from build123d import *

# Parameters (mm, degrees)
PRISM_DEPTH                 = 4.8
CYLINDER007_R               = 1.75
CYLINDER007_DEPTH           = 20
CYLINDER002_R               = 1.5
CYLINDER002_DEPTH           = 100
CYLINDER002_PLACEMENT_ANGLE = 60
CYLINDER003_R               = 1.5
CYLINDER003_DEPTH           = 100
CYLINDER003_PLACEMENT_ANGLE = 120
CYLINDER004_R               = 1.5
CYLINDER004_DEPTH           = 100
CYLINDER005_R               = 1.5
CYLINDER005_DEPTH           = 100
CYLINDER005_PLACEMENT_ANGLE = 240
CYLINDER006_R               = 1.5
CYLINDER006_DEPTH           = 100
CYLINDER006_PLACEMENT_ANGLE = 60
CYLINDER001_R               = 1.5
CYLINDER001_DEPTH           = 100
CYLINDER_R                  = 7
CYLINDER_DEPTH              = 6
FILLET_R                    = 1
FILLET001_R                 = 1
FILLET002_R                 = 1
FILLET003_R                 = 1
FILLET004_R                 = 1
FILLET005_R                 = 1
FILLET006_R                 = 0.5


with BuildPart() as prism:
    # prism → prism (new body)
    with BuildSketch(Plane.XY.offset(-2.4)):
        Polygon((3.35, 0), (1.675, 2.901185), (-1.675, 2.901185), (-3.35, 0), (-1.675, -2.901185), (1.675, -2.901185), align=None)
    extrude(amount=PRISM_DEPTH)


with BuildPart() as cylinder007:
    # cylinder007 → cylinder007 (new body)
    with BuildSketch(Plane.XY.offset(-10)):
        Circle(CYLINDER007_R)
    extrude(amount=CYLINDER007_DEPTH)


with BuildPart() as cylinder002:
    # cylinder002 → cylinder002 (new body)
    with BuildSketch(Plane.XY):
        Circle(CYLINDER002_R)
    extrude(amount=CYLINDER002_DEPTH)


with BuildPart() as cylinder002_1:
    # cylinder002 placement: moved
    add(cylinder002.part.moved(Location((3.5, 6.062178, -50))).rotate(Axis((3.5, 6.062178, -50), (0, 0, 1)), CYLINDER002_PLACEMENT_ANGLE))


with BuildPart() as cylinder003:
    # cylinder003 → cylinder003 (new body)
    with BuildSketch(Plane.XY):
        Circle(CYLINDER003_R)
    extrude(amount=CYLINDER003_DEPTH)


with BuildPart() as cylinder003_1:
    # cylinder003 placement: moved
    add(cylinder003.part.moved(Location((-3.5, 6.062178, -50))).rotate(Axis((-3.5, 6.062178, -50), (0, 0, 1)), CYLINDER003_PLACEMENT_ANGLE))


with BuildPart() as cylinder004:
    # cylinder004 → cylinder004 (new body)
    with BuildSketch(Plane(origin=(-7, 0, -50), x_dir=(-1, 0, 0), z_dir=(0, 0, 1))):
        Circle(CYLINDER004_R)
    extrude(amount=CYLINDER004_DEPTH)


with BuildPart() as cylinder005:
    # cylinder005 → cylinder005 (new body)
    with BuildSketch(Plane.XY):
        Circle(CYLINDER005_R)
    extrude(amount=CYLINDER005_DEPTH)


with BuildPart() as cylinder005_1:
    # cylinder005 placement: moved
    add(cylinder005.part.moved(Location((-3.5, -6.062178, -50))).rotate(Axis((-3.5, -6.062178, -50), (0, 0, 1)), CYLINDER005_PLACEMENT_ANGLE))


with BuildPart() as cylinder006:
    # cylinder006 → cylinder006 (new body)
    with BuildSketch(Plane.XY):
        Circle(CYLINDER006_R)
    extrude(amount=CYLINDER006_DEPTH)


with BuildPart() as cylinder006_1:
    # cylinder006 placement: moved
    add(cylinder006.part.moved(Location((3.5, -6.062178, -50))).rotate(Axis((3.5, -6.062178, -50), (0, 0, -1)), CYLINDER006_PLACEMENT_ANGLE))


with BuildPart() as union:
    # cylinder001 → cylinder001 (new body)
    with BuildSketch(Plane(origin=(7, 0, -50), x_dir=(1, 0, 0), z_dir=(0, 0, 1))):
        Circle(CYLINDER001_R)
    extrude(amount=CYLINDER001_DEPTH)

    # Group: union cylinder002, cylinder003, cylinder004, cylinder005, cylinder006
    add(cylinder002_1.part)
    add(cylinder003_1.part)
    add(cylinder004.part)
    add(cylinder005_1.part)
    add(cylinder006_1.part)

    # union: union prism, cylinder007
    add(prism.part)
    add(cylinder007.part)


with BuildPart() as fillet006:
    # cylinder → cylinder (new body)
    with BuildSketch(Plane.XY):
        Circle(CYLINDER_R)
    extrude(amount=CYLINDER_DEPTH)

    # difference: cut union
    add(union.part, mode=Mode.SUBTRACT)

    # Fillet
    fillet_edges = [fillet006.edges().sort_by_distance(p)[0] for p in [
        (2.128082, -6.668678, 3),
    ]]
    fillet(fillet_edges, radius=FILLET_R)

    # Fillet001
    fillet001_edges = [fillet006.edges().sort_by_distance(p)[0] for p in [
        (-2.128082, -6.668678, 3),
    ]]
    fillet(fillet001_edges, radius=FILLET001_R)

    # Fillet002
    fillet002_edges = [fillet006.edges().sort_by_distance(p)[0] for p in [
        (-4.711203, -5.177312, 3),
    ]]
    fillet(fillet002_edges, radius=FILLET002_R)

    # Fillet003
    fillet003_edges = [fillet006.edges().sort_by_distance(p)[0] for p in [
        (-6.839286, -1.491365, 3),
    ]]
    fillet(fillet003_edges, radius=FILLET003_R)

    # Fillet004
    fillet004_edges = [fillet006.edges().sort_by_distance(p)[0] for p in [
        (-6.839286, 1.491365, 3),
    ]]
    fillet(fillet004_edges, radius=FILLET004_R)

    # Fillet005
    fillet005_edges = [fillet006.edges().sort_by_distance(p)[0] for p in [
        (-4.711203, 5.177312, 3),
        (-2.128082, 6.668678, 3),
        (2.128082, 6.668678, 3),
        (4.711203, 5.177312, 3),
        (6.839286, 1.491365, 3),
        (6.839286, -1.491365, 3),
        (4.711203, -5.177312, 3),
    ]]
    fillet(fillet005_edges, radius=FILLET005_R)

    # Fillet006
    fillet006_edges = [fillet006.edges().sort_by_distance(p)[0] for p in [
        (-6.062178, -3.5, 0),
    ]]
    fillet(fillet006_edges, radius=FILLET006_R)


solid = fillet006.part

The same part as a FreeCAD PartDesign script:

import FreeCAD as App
import Part
import Sketcher
Q = App.Units.Quantity


def edges_at(feature, points):
    """Names of the edges that pass closest to the given points."""
    edges = feature.Shape.Edges
    near = lambda p: min(range(len(edges)), key=lambda i: edges[i].distToShape(Part.Vertex(*p))[0])
    return sorted({f"Edge{near(p) + 1}" for p in points})


def add_polygon(sketch, points):
    """Adds a closed chain of lines whose ends are joined by coincident constraints."""
    first, n = sketch.GeometryCount, len(points)
    for a, b in zip(points, points[1:] + points[:1]):
        sketch.addGeometry(Part.LineSegment(App.Vector(*a, 0), App.Vector(*b, 0)), False)
    for i in range(n):
        sketch.addConstraint(Sketcher.Constraint("Coincident", first + i, 2, first + (i + 1) % n, 1))

doc = App.newDocument("Part")
body = doc.addObject("PartDesign::Body", "Body")

sketch1 = doc.addObject("Sketcher::SketchObject", "Sketch")
body.addObject(sketch1)
sketch1.AttachmentSupport = (doc.XY_Plane, [""])
sketch1.MapMode = "FlatFace"
sketch1.AttachmentOffset = App.Placement(App.Vector(0, 0, -2.4), App.Rotation())
add_polygon(sketch1, [(3.4, 0), (1.7, 2.9), (-1.7, 2.9), (-3.4, 0), (-1.7, -2.9), (1.7, -2.9)])
sketch1.addConstraint([
    Sketcher.Constraint("Horizontal", 1),
    Sketcher.Constraint("Horizontal", 4),
    Sketcher.Constraint("Symmetric", 0, 2, 3, 2, -1, 1),
    Sketcher.Constraint("Symmetric", 2, 2, 5, 2, -1, 1),
    Sketcher.Constraint("PointOnObject", 2, 2, -1),
    Sketcher.Constraint("Parallel", 2, 5),
    Sketcher.Constraint("Vertical", 1, 2, 3, 2),
    Sketcher.Constraint("Angle", 0, Q("120.000001 deg")),
    Sketcher.Constraint("DistanceX", 1, 2, 1, 1, 3.35),
    Sketcher.Constraint("DistanceX", 2, 2, 5, 2, 6.7),
])
pad1 = doc.addObject("PartDesign::Pad", "Pad")
body.addObject(pad1)
pad1.Profile = sketch1
pad1.Length = 4.8
body2 = doc.addObject("PartDesign::Body", "Body001")

sketch2 = doc.addObject("Sketcher::SketchObject", "Sketch001")
body2.addObject(sketch2)
sketch2.AttachmentSupport = (doc.getObject("XY_Plane001"), [""])
sketch2.MapMode = "FlatFace"
sketch2.AttachmentOffset = App.Placement(App.Vector(0, 0, -10), App.Rotation())
sketch2.addGeometry(Part.Circle(App.Vector(0, 0, 0), App.Vector(0, 0, 1), 1.8), False)
sketch2.addConstraint([
    Sketcher.Constraint("Coincident", 0, 3, -1, 1),
    Sketcher.Constraint("Diameter", 0, 3.5),
])
pad2 = doc.addObject("PartDesign::Pad", "Pad001")
body2.addObject(pad2)
pad2.Profile = sketch2
pad2.Length = 20
body3 = doc.addObject("PartDesign::Body", "Body002")

sketch3 = doc.addObject("Sketcher::SketchObject", "Sketch002")
body3.addObject(sketch3)
sketch3.AttachmentSupport = (doc.getObject("XY_Plane002"), [""])
sketch3.MapMode = "FlatFace"
sketch3.addGeometry(Part.Circle(App.Vector(0, 0, 0), App.Vector(0, 0, 1), 1.5), False)
sketch3.addConstraint([
    Sketcher.Constraint("Coincident", 0, 3, -1, 1),
    Sketcher.Constraint("Diameter", 0, 3.0),
])
pad3 = doc.addObject("PartDesign::Pad", "Pad002")
body3.addObject(pad3)
pad3.Profile = sketch3
pad3.Length = 100
body4 = doc.addObject("PartDesign::Body", "Body003")
doc.recompute()

body3.Placement = App.Placement(App.Vector(3.5, 6.062178, -50), App.Rotation(App.Vector(0, 0, 1), 60))
boolean = doc.addObject("PartDesign::Boolean", "Boolean")
body4.addObject(boolean)
boolean.Type = "Fuse"
boolean.addObjects([body3])
body5 = doc.addObject("PartDesign::Body", "Body004")

sketch4 = doc.addObject("Sketcher::SketchObject", "Sketch003")
body5.addObject(sketch4)
sketch4.AttachmentSupport = (doc.getObject("XY_Plane004"), [""])
sketch4.MapMode = "FlatFace"
sketch4.addGeometry(Part.Circle(App.Vector(0, 0, 0), App.Vector(0, 0, 1), 1.5), False)
sketch4.addConstraint([
    Sketcher.Constraint("Coincident", 0, 3, -1, 1),
    Sketcher.Constraint("Diameter", 0, 3.0),
])
pad4 = doc.addObject("PartDesign::Pad", "Pad003")
body5.addObject(pad4)
pad4.Profile = sketch4
pad4.Length = 100
body6 = doc.addObject("PartDesign::Body", "Body005")
doc.recompute()

body5.Placement = App.Placement(App.Vector(-3.5, 6.062178, -50), App.Rotation(App.Vector(0, 0, 1), 120))
boolean2 = doc.addObject("PartDesign::Boolean", "Boolean001")
body6.addObject(boolean2)
boolean2.Type = "Fuse"
boolean2.addObjects([body5])
body7 = doc.addObject("PartDesign::Body", "Body006")

sketch5 = doc.addObject("Sketcher::SketchObject", "Sketch004")
body7.addObject(sketch5)
sketch5.AttachmentSupport = (doc.getObject("XY_Plane006"), [""])
sketch5.MapMode = "FlatFace"
sketch5.AttachmentOffset = App.Placement(App.Vector(0, 0, -50), App.Rotation())
sketch5.addGeometry(Part.Circle(App.Vector(-7, 0, 0), App.Vector(0, 0, 1), 1.5), False)
sketch5.addConstraint([
    Sketcher.Constraint("PointOnObject", 0, 3, -1),
    Sketcher.Constraint("Diameter", 0, 3.0),
    Sketcher.Constraint("DistanceX", 0, 3, -1, 1, 7.0),
])
pad5 = doc.addObject("PartDesign::Pad", "Pad004")
body7.addObject(pad5)
pad5.Profile = sketch5
pad5.Length = 100
body8 = doc.addObject("PartDesign::Body", "Body007")

sketch6 = doc.addObject("Sketcher::SketchObject", "Sketch005")
body8.addObject(sketch6)
sketch6.AttachmentSupport = (doc.getObject("XY_Plane007"), [""])
sketch6.MapMode = "FlatFace"
sketch6.addGeometry(Part.Circle(App.Vector(0, 0, 0), App.Vector(0, 0, 1), 1.5), False)
sketch6.addConstraint([
    Sketcher.Constraint("Coincident", 0, 3, -1, 1),
    Sketcher.Constraint("Diameter", 0, 3.0),
])
pad6 = doc.addObject("PartDesign::Pad", "Pad005")
body8.addObject(pad6)
pad6.Profile = sketch6
pad6.Length = 100
body9 = doc.addObject("PartDesign::Body", "Body008")
doc.recompute()

body8.Placement = App.Placement(App.Vector(-3.5, -6.062178, -50), App.Rotation(App.Vector(0, 0, 1), 240))
boolean3 = doc.addObject("PartDesign::Boolean", "Boolean002")
body9.addObject(boolean3)
boolean3.Type = "Fuse"
boolean3.addObjects([body8])
body10 = doc.addObject("PartDesign::Body", "Body009")

sketch7 = doc.addObject("Sketcher::SketchObject", "Sketch006")
body10.addObject(sketch7)
sketch7.AttachmentSupport = (doc.getObject("XY_Plane009"), [""])
sketch7.MapMode = "FlatFace"
sketch7.addGeometry(Part.Circle(App.Vector(0, 0, 0), App.Vector(0, 0, 1), 1.5), False)
sketch7.addConstraint([
    Sketcher.Constraint("Coincident", 0, 3, -1, 1),
    Sketcher.Constraint("Diameter", 0, 3.0),
])
pad7 = doc.addObject("PartDesign::Pad", "Pad006")
body10.addObject(pad7)
pad7.Profile = sketch7
pad7.Length = 100
body11 = doc.addObject("PartDesign::Body", "Body010")
doc.recompute()

body10.Placement = App.Placement(App.Vector(3.5, -6.062178, -50), App.Rotation(App.Vector(0, 0, -1), 60))
boolean4 = doc.addObject("PartDesign::Boolean", "Boolean003")
body11.addObject(boolean4)
boolean4.Type = "Fuse"
boolean4.addObjects([body10])
body12 = doc.addObject("PartDesign::Body", "Body011")
body12.AllowCompound = True

sketch8 = doc.addObject("Sketcher::SketchObject", "Sketch007")
body12.addObject(sketch8)
sketch8.AttachmentSupport = (doc.getObject("XY_Plane011"), [""])
sketch8.MapMode = "FlatFace"
sketch8.AttachmentOffset = App.Placement(App.Vector(0, 0, -50), App.Rotation())
sketch8.addGeometry(Part.Circle(App.Vector(7, 0, 0), App.Vector(0, 0, 1), 1.5), False)
sketch8.addConstraint([
    Sketcher.Constraint("PointOnObject", 0, 3, -1),
    Sketcher.Constraint("Diameter", 0, 3.0),
    Sketcher.Constraint("DistanceX", -1, 1, 0, 3, 7.0),
])
pad8 = doc.addObject("PartDesign::Pad", "Pad007")
body12.addObject(pad8)
pad8.Profile = sketch8
pad8.Length = 100
doc.recompute()

boolean5 = doc.addObject("PartDesign::Boolean", "Boolean004")
body12.addObject(boolean5)
boolean5.Type = "Fuse"
boolean5.addObjects([body4])
doc.recompute()

boolean6 = doc.addObject("PartDesign::Boolean", "Boolean005")
body12.addObject(boolean6)
boolean6.Type = "Fuse"
boolean6.addObjects([body6])
doc.recompute()

boolean7 = doc.addObject("PartDesign::Boolean", "Boolean006")
body12.addObject(boolean7)
boolean7.Type = "Fuse"
boolean7.addObjects([body7])
doc.recompute()

boolean8 = doc.addObject("PartDesign::Boolean", "Boolean007")
body12.addObject(boolean8)
boolean8.Type = "Fuse"
boolean8.addObjects([body9])
doc.recompute()

boolean9 = doc.addObject("PartDesign::Boolean", "Boolean008")
body12.addObject(boolean9)
boolean9.Type = "Fuse"
boolean9.addObjects([body11])
doc.recompute()

boolean10 = doc.addObject("PartDesign::Boolean", "Boolean009")
body12.addObject(boolean10)
boolean10.Type = "Fuse"
boolean10.addObjects([body])
doc.recompute()

boolean11 = doc.addObject("PartDesign::Boolean", "Boolean010")
body12.addObject(boolean11)
boolean11.Type = "Fuse"
boolean11.addObjects([body2])
body13 = doc.addObject("PartDesign::Body", "Body012")

sketch9 = doc.addObject("Sketcher::SketchObject", "Sketch008")
body13.addObject(sketch9)
sketch9.AttachmentSupport = (doc.getObject("XY_Plane012"), [""])
sketch9.MapMode = "FlatFace"
sketch9.addGeometry(Part.Circle(App.Vector(0, 0, 0), App.Vector(0, 0, 1), 7), False)
sketch9.addConstraint([
    Sketcher.Constraint("Coincident", 0, 3, -1, 1),
    Sketcher.Constraint("Diameter", 0, 14.0),
])
pad9 = doc.addObject("PartDesign::Pad", "Pad008")
body13.addObject(pad9)
pad9.Profile = sketch9
pad9.Length = 6
doc.recompute()

boolean12 = doc.addObject("PartDesign::Boolean", "Boolean011")
body13.addObject(boolean12)
boolean12.Type = "Cut"
boolean12.addObjects([body12])
doc.recompute()

fillet = doc.addObject("PartDesign::Fillet", "Fillet")
body13.addObject(fillet)
fillet.Base = (boolean12, edges_at(boolean12, [(2.128, -6.669, 3)]))
fillet.Radius = 1
doc.recompute()

fillet2 = doc.addObject("PartDesign::Fillet", "Fillet001")
body13.addObject(fillet2)
fillet2.Base = (fillet, edges_at(fillet, [(-2.128, -6.669, 3)]))
fillet2.Radius = 1
doc.recompute()

fillet3 = doc.addObject("PartDesign::Fillet", "Fillet002")
body13.addObject(fillet3)
fillet3.Base = (fillet2, edges_at(fillet2, [(-4.711, -5.177, 3)]))
fillet3.Radius = 1
doc.recompute()

fillet4 = doc.addObject("PartDesign::Fillet", "Fillet003")
body13.addObject(fillet4)
fillet4.Base = (fillet3, edges_at(fillet3, [(-6.839, -1.491, 3)]))
fillet4.Radius = 1
doc.recompute()

fillet5 = doc.addObject("PartDesign::Fillet", "Fillet004")
body13.addObject(fillet5)
fillet5.Base = (fillet4, edges_at(fillet4, [(-6.839, 1.491, 3)]))
fillet5.Radius = 1
doc.recompute()

fillet6 = doc.addObject("PartDesign::Fillet", "Fillet005")
body13.addObject(fillet6)
fillet6.Base = (fillet5, edges_at(fillet5, [
    (-4.711, 5.177, 3),
    (-2.128, 6.669, 3),
    (2.128, 6.669, 3),
    (4.711, 5.177, 3),
    (6.839, 1.491, 3),
    (6.839, -1.491, 3),
    (4.711, -5.177, 3),
]))
fillet6.Radius = 1
doc.recompute()

fillet7 = doc.addObject("PartDesign::Fillet", "Fillet006")
body13.addObject(fillet7)
fillet7.Base = (fillet6, edges_at(fillet6, [(-6.062, -3.5, 0)]))
fillet7.Radius = 0.5

doc.recompute()
